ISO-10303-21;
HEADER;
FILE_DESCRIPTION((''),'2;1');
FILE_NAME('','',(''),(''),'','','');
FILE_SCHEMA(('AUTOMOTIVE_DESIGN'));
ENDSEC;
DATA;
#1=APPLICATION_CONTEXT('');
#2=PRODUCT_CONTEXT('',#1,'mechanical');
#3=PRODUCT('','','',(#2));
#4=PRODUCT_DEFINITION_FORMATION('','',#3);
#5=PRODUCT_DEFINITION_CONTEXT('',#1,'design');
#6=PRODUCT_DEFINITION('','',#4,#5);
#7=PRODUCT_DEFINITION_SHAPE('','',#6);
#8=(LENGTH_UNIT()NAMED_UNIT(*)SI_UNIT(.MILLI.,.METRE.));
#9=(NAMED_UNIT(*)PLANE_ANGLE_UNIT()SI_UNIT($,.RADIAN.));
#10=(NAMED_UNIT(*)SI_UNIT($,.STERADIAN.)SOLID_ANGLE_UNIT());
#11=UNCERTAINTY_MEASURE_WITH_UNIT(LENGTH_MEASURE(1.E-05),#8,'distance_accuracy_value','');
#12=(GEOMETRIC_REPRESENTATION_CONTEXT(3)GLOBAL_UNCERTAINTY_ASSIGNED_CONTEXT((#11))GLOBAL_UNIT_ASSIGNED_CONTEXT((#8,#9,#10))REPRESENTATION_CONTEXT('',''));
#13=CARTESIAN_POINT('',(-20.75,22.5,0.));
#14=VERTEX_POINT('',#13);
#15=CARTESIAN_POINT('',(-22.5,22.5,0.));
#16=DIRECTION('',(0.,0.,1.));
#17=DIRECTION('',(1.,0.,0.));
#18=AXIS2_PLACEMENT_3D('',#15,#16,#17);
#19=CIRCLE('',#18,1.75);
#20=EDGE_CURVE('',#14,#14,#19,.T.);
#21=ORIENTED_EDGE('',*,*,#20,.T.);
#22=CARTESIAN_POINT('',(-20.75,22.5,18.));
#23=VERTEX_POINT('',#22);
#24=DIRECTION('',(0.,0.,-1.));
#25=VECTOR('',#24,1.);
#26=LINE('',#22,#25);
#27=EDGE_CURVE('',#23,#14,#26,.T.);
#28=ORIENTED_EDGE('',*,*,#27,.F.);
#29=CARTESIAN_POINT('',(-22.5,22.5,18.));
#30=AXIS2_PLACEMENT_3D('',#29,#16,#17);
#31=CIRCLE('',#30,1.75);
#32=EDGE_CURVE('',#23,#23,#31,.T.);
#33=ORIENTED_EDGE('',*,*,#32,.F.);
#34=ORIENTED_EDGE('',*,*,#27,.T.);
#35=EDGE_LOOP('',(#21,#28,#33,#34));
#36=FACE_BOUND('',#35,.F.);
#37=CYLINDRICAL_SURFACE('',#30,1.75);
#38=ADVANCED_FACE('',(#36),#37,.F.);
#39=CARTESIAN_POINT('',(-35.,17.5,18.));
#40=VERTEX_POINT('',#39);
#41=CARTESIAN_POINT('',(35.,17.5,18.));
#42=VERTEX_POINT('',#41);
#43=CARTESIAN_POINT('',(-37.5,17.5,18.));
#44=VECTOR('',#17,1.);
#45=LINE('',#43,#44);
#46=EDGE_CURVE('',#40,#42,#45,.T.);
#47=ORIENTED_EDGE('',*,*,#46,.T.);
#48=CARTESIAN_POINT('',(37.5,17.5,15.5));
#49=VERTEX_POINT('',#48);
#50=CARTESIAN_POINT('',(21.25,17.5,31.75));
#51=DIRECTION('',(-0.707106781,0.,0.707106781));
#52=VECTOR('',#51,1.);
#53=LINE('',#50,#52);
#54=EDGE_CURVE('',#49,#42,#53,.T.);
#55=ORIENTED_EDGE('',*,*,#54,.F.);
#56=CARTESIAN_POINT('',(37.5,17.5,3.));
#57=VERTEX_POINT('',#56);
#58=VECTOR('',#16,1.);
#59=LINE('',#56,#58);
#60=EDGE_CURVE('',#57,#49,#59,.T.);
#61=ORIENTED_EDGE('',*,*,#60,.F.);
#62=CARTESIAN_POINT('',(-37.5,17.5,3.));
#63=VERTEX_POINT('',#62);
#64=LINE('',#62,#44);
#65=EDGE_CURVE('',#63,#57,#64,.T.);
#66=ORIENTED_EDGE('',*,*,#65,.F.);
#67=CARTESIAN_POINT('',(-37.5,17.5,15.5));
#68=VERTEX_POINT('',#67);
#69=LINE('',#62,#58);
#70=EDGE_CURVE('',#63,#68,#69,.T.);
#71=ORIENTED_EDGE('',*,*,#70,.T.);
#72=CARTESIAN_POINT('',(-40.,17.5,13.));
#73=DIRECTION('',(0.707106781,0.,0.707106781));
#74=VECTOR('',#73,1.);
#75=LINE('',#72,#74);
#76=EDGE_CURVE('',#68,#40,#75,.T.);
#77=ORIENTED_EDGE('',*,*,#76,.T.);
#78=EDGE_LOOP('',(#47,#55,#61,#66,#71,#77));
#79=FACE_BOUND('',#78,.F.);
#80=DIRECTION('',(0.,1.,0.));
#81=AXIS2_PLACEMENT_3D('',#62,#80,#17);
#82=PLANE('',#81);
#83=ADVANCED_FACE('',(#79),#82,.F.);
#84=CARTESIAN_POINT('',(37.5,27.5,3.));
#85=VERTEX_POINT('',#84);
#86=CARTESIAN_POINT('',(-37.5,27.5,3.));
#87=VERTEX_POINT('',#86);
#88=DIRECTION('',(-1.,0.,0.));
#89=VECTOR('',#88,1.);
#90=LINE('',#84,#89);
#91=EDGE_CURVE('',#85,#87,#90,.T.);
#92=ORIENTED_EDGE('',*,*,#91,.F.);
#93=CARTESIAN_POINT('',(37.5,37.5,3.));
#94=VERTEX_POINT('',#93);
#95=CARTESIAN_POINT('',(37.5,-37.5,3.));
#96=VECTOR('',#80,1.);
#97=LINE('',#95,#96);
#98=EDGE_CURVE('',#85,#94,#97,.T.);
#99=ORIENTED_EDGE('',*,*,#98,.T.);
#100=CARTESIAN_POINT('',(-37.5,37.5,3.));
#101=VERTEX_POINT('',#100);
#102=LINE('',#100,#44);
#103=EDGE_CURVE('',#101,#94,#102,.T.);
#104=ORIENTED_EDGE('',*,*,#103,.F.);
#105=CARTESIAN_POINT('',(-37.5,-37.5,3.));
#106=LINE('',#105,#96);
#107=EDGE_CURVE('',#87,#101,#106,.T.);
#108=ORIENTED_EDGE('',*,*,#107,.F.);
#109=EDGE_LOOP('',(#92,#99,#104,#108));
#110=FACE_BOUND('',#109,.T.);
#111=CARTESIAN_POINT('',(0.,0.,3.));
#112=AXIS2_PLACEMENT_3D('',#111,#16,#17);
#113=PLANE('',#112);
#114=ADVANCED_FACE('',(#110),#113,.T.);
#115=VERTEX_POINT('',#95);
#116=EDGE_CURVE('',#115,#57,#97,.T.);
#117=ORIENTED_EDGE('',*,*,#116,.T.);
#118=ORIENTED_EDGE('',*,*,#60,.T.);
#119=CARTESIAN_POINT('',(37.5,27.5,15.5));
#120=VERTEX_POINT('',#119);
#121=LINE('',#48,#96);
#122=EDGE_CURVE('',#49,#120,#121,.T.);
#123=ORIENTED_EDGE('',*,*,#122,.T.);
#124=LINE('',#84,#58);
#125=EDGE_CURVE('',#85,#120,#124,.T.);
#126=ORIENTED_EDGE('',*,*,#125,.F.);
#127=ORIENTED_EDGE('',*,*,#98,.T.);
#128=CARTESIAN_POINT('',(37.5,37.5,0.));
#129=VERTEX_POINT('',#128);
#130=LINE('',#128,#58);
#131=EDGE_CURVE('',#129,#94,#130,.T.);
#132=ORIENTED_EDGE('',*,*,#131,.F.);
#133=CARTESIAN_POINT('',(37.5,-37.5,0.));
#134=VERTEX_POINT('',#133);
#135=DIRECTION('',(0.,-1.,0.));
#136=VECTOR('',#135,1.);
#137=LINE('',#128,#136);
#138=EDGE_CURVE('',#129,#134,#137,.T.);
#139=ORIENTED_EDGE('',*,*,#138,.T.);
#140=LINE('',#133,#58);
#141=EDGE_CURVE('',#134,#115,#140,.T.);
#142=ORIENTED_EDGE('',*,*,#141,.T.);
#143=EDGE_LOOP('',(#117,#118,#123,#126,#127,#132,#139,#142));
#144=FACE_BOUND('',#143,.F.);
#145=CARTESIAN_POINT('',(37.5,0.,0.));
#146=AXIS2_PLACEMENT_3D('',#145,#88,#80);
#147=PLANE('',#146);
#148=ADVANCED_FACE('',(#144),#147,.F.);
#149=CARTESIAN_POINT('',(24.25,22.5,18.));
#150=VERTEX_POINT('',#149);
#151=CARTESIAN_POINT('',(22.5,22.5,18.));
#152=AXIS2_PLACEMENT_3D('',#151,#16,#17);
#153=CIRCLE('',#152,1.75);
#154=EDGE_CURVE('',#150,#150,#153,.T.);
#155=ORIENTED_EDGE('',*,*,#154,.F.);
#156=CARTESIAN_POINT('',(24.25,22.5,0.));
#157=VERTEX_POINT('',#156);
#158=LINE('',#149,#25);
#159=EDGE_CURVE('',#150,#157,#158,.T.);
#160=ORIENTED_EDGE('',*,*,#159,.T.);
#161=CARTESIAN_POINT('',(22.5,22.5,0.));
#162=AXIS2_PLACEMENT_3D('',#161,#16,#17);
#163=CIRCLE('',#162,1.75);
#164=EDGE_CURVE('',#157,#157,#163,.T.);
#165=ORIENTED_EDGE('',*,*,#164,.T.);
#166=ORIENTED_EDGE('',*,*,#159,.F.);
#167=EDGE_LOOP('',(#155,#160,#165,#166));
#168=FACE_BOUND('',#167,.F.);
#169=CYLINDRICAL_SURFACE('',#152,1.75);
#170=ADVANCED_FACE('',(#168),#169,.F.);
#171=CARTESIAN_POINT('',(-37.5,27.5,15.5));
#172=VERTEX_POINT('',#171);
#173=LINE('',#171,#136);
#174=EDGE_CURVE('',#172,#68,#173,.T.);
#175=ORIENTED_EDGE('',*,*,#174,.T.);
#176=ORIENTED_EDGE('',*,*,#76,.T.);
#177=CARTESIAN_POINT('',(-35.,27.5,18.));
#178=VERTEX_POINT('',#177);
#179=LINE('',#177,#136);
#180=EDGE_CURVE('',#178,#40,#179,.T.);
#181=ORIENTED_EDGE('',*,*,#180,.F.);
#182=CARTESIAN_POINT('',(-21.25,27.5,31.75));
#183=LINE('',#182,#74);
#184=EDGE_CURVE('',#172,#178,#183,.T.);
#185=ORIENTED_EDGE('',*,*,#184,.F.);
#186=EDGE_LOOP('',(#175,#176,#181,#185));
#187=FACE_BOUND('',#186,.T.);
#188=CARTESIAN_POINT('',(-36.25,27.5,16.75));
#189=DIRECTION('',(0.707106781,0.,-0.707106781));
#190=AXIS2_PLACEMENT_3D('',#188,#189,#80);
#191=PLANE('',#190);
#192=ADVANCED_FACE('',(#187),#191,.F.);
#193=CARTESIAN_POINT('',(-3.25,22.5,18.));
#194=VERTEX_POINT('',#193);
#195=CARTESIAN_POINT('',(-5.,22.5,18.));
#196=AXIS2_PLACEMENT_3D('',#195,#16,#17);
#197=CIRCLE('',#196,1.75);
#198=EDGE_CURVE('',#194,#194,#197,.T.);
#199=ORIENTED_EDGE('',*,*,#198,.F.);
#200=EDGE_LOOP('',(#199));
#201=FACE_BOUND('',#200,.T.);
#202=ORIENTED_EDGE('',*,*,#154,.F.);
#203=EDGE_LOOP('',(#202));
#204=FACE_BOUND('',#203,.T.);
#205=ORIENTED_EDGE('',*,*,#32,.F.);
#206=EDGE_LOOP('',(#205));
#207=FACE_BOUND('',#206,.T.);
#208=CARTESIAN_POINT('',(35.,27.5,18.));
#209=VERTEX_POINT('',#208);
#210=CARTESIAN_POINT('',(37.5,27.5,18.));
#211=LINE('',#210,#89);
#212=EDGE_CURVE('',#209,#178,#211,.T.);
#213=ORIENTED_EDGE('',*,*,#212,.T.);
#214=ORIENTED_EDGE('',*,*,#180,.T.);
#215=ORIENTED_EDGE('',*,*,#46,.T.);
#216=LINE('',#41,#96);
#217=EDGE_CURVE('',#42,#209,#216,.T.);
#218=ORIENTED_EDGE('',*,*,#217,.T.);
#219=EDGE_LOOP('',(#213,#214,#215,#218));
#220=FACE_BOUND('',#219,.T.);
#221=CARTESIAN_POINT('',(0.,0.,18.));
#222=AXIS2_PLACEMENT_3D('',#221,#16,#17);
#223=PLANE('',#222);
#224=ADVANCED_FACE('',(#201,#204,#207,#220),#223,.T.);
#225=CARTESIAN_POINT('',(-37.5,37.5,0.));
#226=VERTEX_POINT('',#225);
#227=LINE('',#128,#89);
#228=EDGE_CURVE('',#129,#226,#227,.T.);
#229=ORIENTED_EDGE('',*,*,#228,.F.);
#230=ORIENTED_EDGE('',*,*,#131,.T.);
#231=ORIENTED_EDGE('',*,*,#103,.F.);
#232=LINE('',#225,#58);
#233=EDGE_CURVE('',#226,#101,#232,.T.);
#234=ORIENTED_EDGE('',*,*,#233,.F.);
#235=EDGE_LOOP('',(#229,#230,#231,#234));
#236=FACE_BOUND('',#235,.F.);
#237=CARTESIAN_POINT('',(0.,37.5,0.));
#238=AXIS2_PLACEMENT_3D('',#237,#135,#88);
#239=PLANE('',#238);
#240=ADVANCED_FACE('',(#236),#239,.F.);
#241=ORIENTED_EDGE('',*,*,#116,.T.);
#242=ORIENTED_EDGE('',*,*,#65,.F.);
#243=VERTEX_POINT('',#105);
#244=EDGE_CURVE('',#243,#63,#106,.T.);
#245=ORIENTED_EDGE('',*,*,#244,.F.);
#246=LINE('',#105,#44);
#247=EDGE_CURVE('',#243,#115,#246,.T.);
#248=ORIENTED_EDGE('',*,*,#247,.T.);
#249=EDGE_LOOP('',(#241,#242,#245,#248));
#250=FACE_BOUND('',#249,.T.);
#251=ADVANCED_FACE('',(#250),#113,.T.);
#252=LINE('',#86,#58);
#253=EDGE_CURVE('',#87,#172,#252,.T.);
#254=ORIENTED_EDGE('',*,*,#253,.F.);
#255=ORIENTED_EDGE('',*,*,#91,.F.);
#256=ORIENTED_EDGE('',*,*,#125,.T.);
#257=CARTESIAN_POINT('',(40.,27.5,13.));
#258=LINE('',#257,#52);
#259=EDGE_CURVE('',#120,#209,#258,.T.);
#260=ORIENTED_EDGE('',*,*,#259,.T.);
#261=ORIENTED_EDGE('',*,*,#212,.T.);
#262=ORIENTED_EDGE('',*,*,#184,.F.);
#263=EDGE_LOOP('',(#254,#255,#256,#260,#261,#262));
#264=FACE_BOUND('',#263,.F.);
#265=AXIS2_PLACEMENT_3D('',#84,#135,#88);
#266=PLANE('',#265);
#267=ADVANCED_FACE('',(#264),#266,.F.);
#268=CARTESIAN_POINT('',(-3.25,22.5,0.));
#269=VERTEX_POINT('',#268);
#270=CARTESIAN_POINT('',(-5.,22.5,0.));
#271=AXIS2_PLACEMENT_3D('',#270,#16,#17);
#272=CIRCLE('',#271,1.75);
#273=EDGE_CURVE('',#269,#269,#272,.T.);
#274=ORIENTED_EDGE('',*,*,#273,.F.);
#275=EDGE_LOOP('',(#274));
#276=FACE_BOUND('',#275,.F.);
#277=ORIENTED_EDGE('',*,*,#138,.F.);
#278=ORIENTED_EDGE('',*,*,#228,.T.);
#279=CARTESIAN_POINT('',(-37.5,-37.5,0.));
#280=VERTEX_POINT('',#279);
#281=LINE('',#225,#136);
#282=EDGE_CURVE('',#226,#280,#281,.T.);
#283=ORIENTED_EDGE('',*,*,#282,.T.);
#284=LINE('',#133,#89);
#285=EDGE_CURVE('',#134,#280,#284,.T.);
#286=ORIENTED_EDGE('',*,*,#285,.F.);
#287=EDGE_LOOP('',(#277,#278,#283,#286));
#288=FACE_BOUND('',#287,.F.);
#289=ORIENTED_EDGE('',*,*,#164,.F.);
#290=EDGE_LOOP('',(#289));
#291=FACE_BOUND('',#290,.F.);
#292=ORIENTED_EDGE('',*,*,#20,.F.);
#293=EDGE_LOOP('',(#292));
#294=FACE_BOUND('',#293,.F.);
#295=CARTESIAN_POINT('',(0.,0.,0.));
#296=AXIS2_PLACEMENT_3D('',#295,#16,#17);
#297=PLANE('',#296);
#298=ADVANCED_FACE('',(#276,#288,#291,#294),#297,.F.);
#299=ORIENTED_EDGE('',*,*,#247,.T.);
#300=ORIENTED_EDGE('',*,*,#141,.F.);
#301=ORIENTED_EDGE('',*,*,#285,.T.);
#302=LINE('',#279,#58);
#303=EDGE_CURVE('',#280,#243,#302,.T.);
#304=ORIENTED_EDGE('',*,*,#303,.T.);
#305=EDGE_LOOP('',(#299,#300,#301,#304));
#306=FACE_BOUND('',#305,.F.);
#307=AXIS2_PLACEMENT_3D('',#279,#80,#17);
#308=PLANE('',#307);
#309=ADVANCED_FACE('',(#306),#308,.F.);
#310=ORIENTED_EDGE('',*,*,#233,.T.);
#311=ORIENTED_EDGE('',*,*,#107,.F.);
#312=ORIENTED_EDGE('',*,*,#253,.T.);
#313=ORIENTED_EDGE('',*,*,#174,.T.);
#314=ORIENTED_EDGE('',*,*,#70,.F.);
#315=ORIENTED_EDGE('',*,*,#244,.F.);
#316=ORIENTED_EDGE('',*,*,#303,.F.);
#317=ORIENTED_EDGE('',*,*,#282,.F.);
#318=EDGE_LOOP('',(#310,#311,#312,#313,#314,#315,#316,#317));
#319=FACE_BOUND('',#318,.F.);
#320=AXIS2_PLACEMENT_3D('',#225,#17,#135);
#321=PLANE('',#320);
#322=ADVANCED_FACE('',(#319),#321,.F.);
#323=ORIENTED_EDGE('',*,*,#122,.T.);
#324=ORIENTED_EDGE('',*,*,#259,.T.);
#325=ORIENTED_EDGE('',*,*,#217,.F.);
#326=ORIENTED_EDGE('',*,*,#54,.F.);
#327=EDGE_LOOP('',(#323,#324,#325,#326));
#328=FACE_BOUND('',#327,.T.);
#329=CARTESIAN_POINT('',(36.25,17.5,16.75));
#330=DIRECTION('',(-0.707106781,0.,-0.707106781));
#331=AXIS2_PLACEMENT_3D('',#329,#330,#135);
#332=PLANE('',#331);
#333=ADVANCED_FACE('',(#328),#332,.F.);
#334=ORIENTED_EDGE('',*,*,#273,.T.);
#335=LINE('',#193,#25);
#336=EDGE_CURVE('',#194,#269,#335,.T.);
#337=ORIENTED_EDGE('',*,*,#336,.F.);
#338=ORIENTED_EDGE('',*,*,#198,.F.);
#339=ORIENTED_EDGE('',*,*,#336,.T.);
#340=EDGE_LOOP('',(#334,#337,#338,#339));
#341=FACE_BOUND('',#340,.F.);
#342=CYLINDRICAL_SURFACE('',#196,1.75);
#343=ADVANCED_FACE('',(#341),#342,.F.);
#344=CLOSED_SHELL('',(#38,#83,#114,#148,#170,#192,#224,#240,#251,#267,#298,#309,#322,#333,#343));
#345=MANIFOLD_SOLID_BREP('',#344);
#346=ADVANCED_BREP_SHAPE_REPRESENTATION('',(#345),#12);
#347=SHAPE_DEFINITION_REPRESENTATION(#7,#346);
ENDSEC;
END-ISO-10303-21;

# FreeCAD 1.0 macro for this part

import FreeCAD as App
import Part
import Sketcher

V = App.Vector
Q = App.Units.Quantity


def edges_at(feature, points):
    """Names of the edges that pass closest to the given points."""
    edges = feature.Shape.Edges
    near = lambda p: min(range(len(edges)), key=lambda i: edges[i].distToShape(Part.Vertex(*p))[0])
    return sorted({f"Edge{near(p) + 1}" for p in points})


def add_polygon(sketch, points):
    """Adds a closed chain of lines whose ends are joined by coincident constraints."""
    first, n = sketch.GeometryCount, len(points)
    for a, b in zip(points, points[1:] + points[:1]):
        sketch.addGeometry(Part.LineSegment(App.Vector(*a, 0), App.Vector(*b, 0)), False)
    for i in range(n):
        sketch.addConstraint(Sketcher.Constraint("Coincident", first + i, 2, first + (i + 1) % n, 1))

doc = App.newDocument("Part")
body = doc.addObject("PartDesign::Body", "Body")

sketch1 = body.newObject("Sketcher::SketchObject", "Sketch")
sketch1.AttachmentSupport = (doc.getObject("XY_Plane"), [""])
sketch1.MapMode = "FlatFace"
add_polygon(sketch1, [(-38, 38), (-38, -38), (38, -38), (38, 38)])
sketch1.addConstraint([
    Sketcher.Constraint("Vertical", 0),
    Sketcher.Constraint("Horizontal", 1),
    Sketcher.Constraint("Vertical", 2),
    Sketcher.Constraint("Horizontal", 3),
    Sketcher.Constraint("Symmetric", 0, 2, 2, 2, -1, 1),
    Sketcher.Constraint("Equal", 3, 0),
    Sketcher.Constraint("DistanceX", 1, 1, 1, 2, Q("75 mm")),
])
pad1 = body.newObject("PartDesign::Pad", "Pad")
pad1.Profile = sketch1
pad1.Length = 3

sketch2 = body.newObject("Sketcher::SketchObject", "Sketch001")
sketch2.AttachmentSupport = (doc.getObject("XY_Plane"), [""])
sketch2.MapMode = "FlatFace"
sketch2.AttachmentOffset = App.Placement(V(0, 0, 3), App.Rotation())
add_polygon(sketch2, [(-38, 18), (38, 18), (38, 28), (-38, 28)])
sketch2.addConstraint([
    Sketcher.Constraint("Horizontal", 0),
    Sketcher.Constraint("Vertical", 1),
    Sketcher.Constraint("Horizontal", 2),
    Sketcher.Constraint("Vertical", 3),
    Sketcher.Constraint("DistanceY", 1, 1, 1, 2, Q("10 mm")),
    Sketcher.Constraint("DistanceX", 0, 1, 0, 2, Q("75 mm")),
    Sketcher.Constraint("DistanceX", -1, 1, 0, 2, Q("37.5 mm")),
    Sketcher.Constraint("DistanceY", -1, 1, 0, 2, Q("17.5 mm")),
])
pad2 = body.newObject("PartDesign::Pad", "Pad001")
pad2.Profile = sketch2
pad2.Length = 15
doc.recompute()

chamfer = body.newObject("PartDesign::Chamfer", "Chamfer")
chamfer.Base = (pad2, edges_at(pad2, [(37.5, 22.5, 18), (-37.5, 22.5, 18)]))
chamfer.Size = 2.5

sketch3 = body.newObject("Sketcher::SketchObject", "Sketch002")
sketch3.AttachmentSupport = (doc.getObject("XY_Plane"), [""])
sketch3.MapMode = "FlatFace"
sketch3.AttachmentOffset = App.Placement(V(0, 0, 18), App.Rotation())
sketch3.addGeometry([
    Part.Circle(V(-5, 22.5, 0), V(0, 0, 1), 1.8),
    Part.Circle(V(-22.5, 22.5, 0), V(0, 0, 1), 1.8),
    Part.Circle(V(22.5, 22.5, 0), V(0, 0, 1), 1.8),
], False)
sketch3.addConstraint([
    Sketcher.Constraint("Equal", 0, 1),
    Sketcher.Constraint("Equal", 1, 2),
    Sketcher.Constraint("Symmetric", 1, 3, 2, 3, -2),
    Sketcher.Constraint("Horizontal", 0, 3, 1, 3),
    Sketcher.Constraint("Diameter", 0, Q("3.5 mm")),
    Sketcher.Constraint("DistanceX", 0, 3, -1, 1, Q("5 mm")),
    Sketcher.Constraint("DistanceX", 1, 3, 2, 3, Q("45 mm")),
    Sketcher.Constraint("DistanceY", -1, 1, 0, 3, Q("22.5 mm")),
])
pocket1 = body.newObject("PartDesign::Pocket", "Pocket")
pocket1.Profile = sketch3
pocket1.Type = "ThroughAll"

doc.recompute()
